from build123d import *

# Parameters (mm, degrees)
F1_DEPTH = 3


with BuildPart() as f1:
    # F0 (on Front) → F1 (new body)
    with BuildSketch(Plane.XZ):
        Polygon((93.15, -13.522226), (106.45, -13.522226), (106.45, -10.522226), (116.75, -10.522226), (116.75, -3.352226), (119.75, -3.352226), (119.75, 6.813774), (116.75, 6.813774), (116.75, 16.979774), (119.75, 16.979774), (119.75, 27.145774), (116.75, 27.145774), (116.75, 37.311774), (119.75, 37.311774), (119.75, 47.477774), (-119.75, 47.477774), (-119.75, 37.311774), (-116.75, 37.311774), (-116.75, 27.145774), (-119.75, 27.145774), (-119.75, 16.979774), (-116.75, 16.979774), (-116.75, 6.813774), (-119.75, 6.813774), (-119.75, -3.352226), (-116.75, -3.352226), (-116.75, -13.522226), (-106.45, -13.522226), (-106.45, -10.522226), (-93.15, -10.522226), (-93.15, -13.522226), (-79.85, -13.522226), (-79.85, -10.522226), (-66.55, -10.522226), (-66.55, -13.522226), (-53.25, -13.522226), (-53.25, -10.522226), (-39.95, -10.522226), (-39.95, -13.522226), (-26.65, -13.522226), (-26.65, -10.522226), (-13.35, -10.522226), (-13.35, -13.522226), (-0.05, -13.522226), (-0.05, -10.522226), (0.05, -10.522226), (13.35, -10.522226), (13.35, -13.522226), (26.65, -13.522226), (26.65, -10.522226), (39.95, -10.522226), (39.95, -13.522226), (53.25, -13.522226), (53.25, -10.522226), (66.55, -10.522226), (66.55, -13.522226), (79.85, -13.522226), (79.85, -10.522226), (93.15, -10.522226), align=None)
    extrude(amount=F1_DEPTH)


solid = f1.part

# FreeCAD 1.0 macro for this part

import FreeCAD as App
import Part
import Sketcher
from FreeCAD import Vector
Q = App.Units.Quantity

doc = App.newDocument("Part")
body = doc.addObject("PartDesign::Body", "Body")

# Sketch on XZ plane
sketch1 = doc.addObject("Sketcher::SketchObject", "Sketch")
body.addObject(sketch1)
sketch1.AttachmentSupport = (doc.XZ_Plane, [""])
sketch1.MapMode = "FlatFace"
sketch1.addGeometry(Part.LineSegment(Vector(93.2, -13.5, 0), Vector(106.5, -13.5, 0)), False)
sketch1.addGeometry(Part.LineSegment(Vector(106.5, -13.5, 0), Vector(106.5, -10.5, 0)), False)
sketch1.addGeometry(Part.LineSegment(Vector(106.5, -10.5, 0), Vector(116.8, -10.5, 0)), False)
sketch1.addGeometry(Part.LineSegment(Vector(116.8, -10.5, 0), Vector(116.8, -3.4, 0)), False)
sketch1.addGeometry(Part.LineSegment(Vector(116.8, -3.4, 0), Vector(119.8, -3.4, 0)), False)
sketch1.addGeometry(Part.LineSegment(Vector(119.8, -3.4, 0), Vector(119.8, 6.8, 0)), False)
sketch1.addGeometry(Part.LineSegment(Vector(119.8, 6.8, 0), Vector(116.8, 6.8, 0)), False)
sketch1.addGeometry(Part.LineSegment(Vector(116.8, 6.8, 0), Vector(116.8, 17, 0)), False)
sketch1.addGeometry(Part.LineSegment(Vector(116.8, 17, 0), Vector(119.8, 17, 0)), False)
sketch1.addGeometry(Part.LineSegment(Vector(119.8, 17, 0), Vector(119.8, 27.1, 0)), False)
sketch1.addGeometry(Part.LineSegment(Vector(119.8, 27.1, 0), Vector(116.8, 27.1, 0)), False)
sketch1.addGeometry(Part.LineSegment(Vector(116.8, 27.1, 0), Vector(116.8, 37.3, 0)), False)
sketch1.addGeometry(Part.LineSegment(Vector(116.8, 37.3, 0), Vector(119.8, 37.3, 0)), False)
sketch1.addGeometry(Part.LineSegment(Vector(119.8, 37.3, 0), Vector(119.8, 47.5, 0)), False)
sketch1.addGeometry(Part.LineSegment(Vector(119.8, 47.5, 0), Vector(-119.8, 47.5, 0)), False)
sketch1.addGeometry(Part.LineSegment(Vector(-119.8, 47.5, 0), Vector(-119.8, 37.3, 0)), False)
sketch1.addGeometry(Part.LineSegment(Vector(-119.8, 37.3, 0), Vector(-116.8, 37.3, 0)), False)
sketch1.addGeometry(Part.LineSegment(Vector(-116.8, 37.3, 0), Vector(-116.8, 27.1, 0)), False)
sketch1.addGeometry(Part.LineSegment(Vector(-116.8, 27.1, 0), Vector(-119.8, 27.1, 0)), False)
sketch1.addGeometry(Part.LineSegment(Vector(-119.8, 27.1, 0), Vector(-119.8, 17, 0)), False)
sketch1.addGeometry(Part.LineSegment(Vector(-119.8, 17, 0), Vector(-116.8, 17, 0)), False)
sketch1.addGeometry(Part.LineSegment(Vector(-116.8, 17, 0), Vector(-116.8, 6.8, 0)), False)
sketch1.addGeometry(Part.LineSegment(Vector(-116.8, 6.8, 0), Vector(-119.8, 6.8, 0)), False)
sketch1.addGeometry(Part.LineSegment(Vector(-119.8, 6.8, 0), Vector(-119.8, -3.4, 0)), False)
sketch1.addGeometry(Part.LineSegment(Vector(-119.8, -3.4, 0), Vector(-116.8, -3.4, 0)), False)
sketch1.addGeometry(Part.LineSegment(Vector(-116.8, -3.4, 0), Vector(-116.8, -13.5, 0)), False)
sketch1.addGeometry(Part.LineSegment(Vector(-116.8, -13.5, 0), Vector(-106.5, -13.5, 0)), False)
sketch1.addGeometry(Part.LineSegment(Vector(-106.5, -13.5, 0), Vector(-106.5, -10.5, 0)), False)
sketch1.addGeometry(Part.LineSegment(Vector(-106.5, -10.5, 0), Vector(-93.2, -10.5, 0)), False)
sketch1.addGeometry(Part.LineSegment(Vector(-93.2, -10.5, 0), Vector(-93.2, -13.5, 0)), False)
sketch1.addGeometry(Part.LineSegment(Vector(-93.2, -13.5, 0), Vector(-79.8, -13.5, 0)), False)
sketch1.addGeometry(Part.LineSegment(Vector(-79.8, -13.5, 0), Vector(-79.8, -10.5, 0)), False)
sketch1.addGeometry(Part.LineSegment(Vector(-79.8, -10.5, 0), Vector(-66.5, -10.5, 0)), False)
sketch1.addGeometry(Part.LineSegment(Vector(-66.5, -10.5, 0), Vector(-66.5, -13.5, 0)), False)
sketch1.addGeometry(Part.LineSegment(Vector(-66.5, -13.5, 0), Vector(-53.2, -13.5, 0)), False)
sketch1.addGeometry(Part.LineSegment(Vector(-53.2, -13.5, 0), Vector(-53.2, -10.5, 0)), False)
sketch1.addGeometry(Part.LineSegment(Vector(-53.2, -10.5, 0), Vector(-40, -10.5, 0)), False)
sketch1.addGeometry(Part.LineSegment(Vector(-40, -10.5, 0), Vector(-40, -13.5, 0)), False)
sketch1.addGeometry(Part.LineSegment(Vector(-40, -13.5, 0), Vector(-26.6, -13.5, 0)), False)
sketch1.addGeometry(Part.LineSegment(Vector(-26.6, -13.5, 0), Vector(-26.6, -10.5, 0)), False)
sketch1.addGeometry(Part.LineSegment(Vector(-26.6, -10.5, 0), Vector(-13.3, -10.5, 0)), False)
sketch1.addGeometry(Part.LineSegment(Vector(-13.3, -10.5, 0), Vector(-13.3, -13.5, 0)), False)
sketch1.addGeometry(Part.LineSegment(Vector(-13.3, -13.5, 0), Vector(-0.1, -13.5, 0)), False)
sketch1.addGeometry(Part.LineSegment(Vector(-0.1, -13.5, 0), Vector(-0.1, -10.5, 0)), False)
sketch1.addGeometry(Part.LineSegment(Vector(-0.1, -10.5, 0), Vector(13.3, -10.5, 0)), False)
sketch1.addGeometry(Part.LineSegment(Vector(13.3, -10.5, 0), Vector(13.3, -13.5, 0)), False)
sketch1.addGeometry(Part.LineSegment(Vector(13.3, -13.5, 0), Vector(26.6, -13.5, 0)), False)
sketch1.addGeometry(Part.LineSegment(Vector(26.6, -13.5, 0), Vector(26.6, -10.5, 0)), False)
sketch1.addGeometry(Part.LineSegment(Vector(26.6, -10.5, 0), Vector(40, -10.5, 0)), False)
sketch1.addGeometry(Part.LineSegment(Vector(40, -10.5, 0), Vector(40, -13.5, 0)), False)
sketch1.addGeometry(Part.LineSegment(Vector(40, -13.5, 0), Vector(53.2, -13.5, 0)), False)
sketch1.addGeometry(Part.LineSegment(Vector(53.2, -13.5, 0), Vector(53.2, -10.5, 0)), False)
sketch1.addGeometry(Part.LineSegment(Vector(53.2, -10.5, 0), Vector(66.5, -10.5, 0)), False)
sketch1.addGeometry(Part.LineSegment(Vector(66.5, -10.5, 0), Vector(66.5, -13.5, 0)), False)
sketch1.addGeometry(Part.LineSegment(Vector(66.5, -13.5, 0), Vector(79.8, -13.5, 0)), False)
sketch1.addGeometry(Part.LineSegment(Vector(79.8, -13.5, 0), Vector(79.8, -10.5, 0)), False)
sketch1.addGeometry(Part.LineSegment(Vector(79.8, -10.5, 0), Vector(93.2, -10.5, 0)), False)
sketch1.addGeometry(Part.LineSegment(Vector(93.2, -10.5, 0), Vector(93.2, -13.5, 0)), False)
sketch1.addConstraint(Sketcher.Constraint("Coincident", 0, 2, 1, 1))
sketch1.addConstraint(Sketcher.Constraint("Coincident", 1, 2, 2, 1))
sketch1.addConstraint(Sketcher.Constraint("Coincident", 2, 2, 3, 1))
sketch1.addConstraint(Sketcher.Constraint("Coincident", 3, 2, 4, 1))
sketch1.addConstraint(Sketcher.Constraint("Coincident", 4, 2, 5, 1))
sketch1.addConstraint(Sketcher.Constraint("Coincident", 5, 2, 6, 1))
sketch1.addConstraint(Sketcher.Constraint("Coincident", 6, 2, 7, 1))
sketch1.addConstraint(Sketcher.Constraint("Coincident", 7, 2, 8, 1))
sketch1.addConstraint(Sketcher.Constraint("Coincident", 8, 2, 9, 1))
sketch1.addConstraint(Sketcher.Constraint("Coincident", 9, 2, 10, 1))
sketch1.addConstraint(Sketcher.Constraint("Coincident", 10, 2, 11, 1))
sketch1.addConstraint(Sketcher.Constraint("Coincident", 11, 2, 12, 1))
sketch1.addConstraint(Sketcher.Constraint("Coincident", 12, 2, 13, 1))
sketch1.addConstraint(Sketcher.Constraint("Coincident", 13, 2, 14, 1))
sketch1.addConstraint(Sketcher.Constraint("Coincident", 14, 2, 15, 1))
sketch1.addConstraint(Sketcher.Constraint("Coincident", 15, 2, 16, 1))
sketch1.addConstraint(Sketcher.Constraint("Coincident", 16, 2, 17, 1))
sketch1.addConstraint(Sketcher.Constraint("Coincident", 17, 2, 18, 1))
sketch1.addConstraint(Sketcher.Constraint("Coincident", 18, 2, 19, 1))
sketch1.addConstraint(Sketcher.Constraint("Coincident", 19, 2, 20, 1))
sketch1.addConstraint(Sketcher.Constraint("Coincident", 20, 2, 21, 1))
sketch1.addConstraint(Sketcher.Constraint("Coincident", 21, 2, 22, 1))
sketch1.addConstraint(Sketcher.Constraint("Coincident", 22, 2, 23, 1))
sketch1.addConstraint(Sketcher.Constraint("Coincident", 23, 2, 24, 1))
sketch1.addConstraint(Sketcher.Constraint("Coincident", 24, 2, 25, 1))
sketch1.addConstraint(Sketcher.Constraint("Coincident", 25, 2, 26, 1))
sketch1.addConstraint(Sketcher.Constraint("Coincident", 26, 2, 27, 1))
sketch1.addConstraint(Sketcher.Constraint("Coincident", 27, 2, 28, 1))
sketch1.addConstraint(Sketcher.Constraint("Coincident", 28, 2, 29, 1))
sketch1.addConstraint(Sketcher.Constraint("Coincident", 29, 2, 30, 1))
sketch1.addConstraint(Sketcher.Constraint("Coincident", 30, 2, 31, 1))
sketch1.addConstraint(Sketcher.Constraint("Coincident", 31, 2, 32, 1))
sketch1.addConstraint(Sketcher.Constraint("Coincident", 32, 2, 33, 1))
sketch1.addConstraint(Sketcher.Constraint("Coincident", 33, 2, 34, 1))
sketch1.addConstraint(Sketcher.Constraint("Coincident", 34, 2, 35, 1))
sketch1.addConstraint(Sketcher.Constraint("Coincident", 35, 2, 36, 1))
sketch1.addConstraint(Sketcher.Constraint("Coincident", 36, 2, 37, 1))
sketch1.addConstraint(Sketcher.Constraint("Coincident", 37, 2, 38, 1))
sketch1.addConstraint(Sketcher.Constraint("Coincident", 38, 2, 39, 1))
sketch1.addConstraint(Sketcher.Constraint("Coincident", 39, 2, 40, 1))
sketch1.addConstraint(Sketcher.Constraint("Coincident", 40, 2, 41, 1))
sketch1.addConstraint(Sketcher.Constraint("Coincident", 41, 2, 42, 1))
sketch1.addConstraint(Sketcher.Constraint("Coincident", 42, 2, 43, 1))
sketch1.addConstraint(Sketcher.Constraint("Coincident", 43, 2, 44, 1))
sketch1.addConstraint(Sketcher.Constraint("Coincident", 44, 2, 45, 1))
sketch1.addConstraint(Sketcher.Constraint("Coincident", 45, 2, 46, 1))
sketch1.addConstraint(Sketcher.Constraint("Coincident", 46, 2, 47, 1))
sketch1.addConstraint(Sketcher.Constraint("Coincident", 47, 2, 48, 1))
sketch1.addConstraint(Sketcher.Constraint("Coincident", 48, 2, 49, 1))
sketch1.addConstraint(Sketcher.Constraint("Coincident", 49, 2, 50, 1))
sketch1.addConstraint(Sketcher.Constraint("Coincident", 50, 2, 51, 1))
sketch1.addConstraint(Sketcher.Constraint("Coincident", 51, 2, 52, 1))
sketch1.addConstraint(Sketcher.Constraint("Coincident", 52, 2, 53, 1))
sketch1.addConstraint(Sketcher.Constraint("Coincident", 53, 2, 54, 1))
sketch1.addConstraint(Sketcher.Constraint("Coincident", 54, 2, 55, 1))
sketch1.addConstraint(Sketcher.Constraint("Coincident", 55, 2, 56, 1))
sketch1.addConstraint(Sketcher.Constraint("Coincident", 56, 2, 57, 1))
sketch1.addConstraint(Sketcher.Constraint("Coincident", 57, 2, 0, 1))
sketch1.addConstraint(Sketcher.Constraint("Horizontal", 0))
sketch1.addConstraint(Sketcher.Constraint("Vertical", 1))
sketch1.addConstraint(Sketcher.Constraint("Horizontal", 2))
sketch1.addConstraint(Sketcher.Constraint("Vertical", 3))
sketch1.addConstraint(Sketcher.Constraint("Horizontal", 4))
sketch1.addConstraint(Sketcher.Constraint("Vertical", 5))
sketch1.addConstraint(Sketcher.Constraint("Horizontal", 6))
sketch1.addConstraint(Sketcher.Constraint("Vertical", 7))
sketch1.addConstraint(Sketcher.Constraint("Horizontal", 8))
sketch1.addConstraint(Sketcher.Constraint("Vertical", 9))
sketch1.addConstraint(Sketcher.Constraint("Horizontal", 10))
sketch1.addConstraint(Sketcher.Constraint("Vertical", 11))
sketch1.addConstraint(Sketcher.Constraint("Horizontal", 12))
sketch1.addConstraint(Sketcher.Constraint("Vertical", 13))
sketch1.addConstraint(Sketcher.Constraint("Horizontal", 14))
sketch1.addConstraint(Sketcher.Constraint("Vertical", 15))
sketch1.addConstraint(Sketcher.Constraint("Horizontal", 16))
sketch1.addConstraint(Sketcher.Constraint("Vertical", 17))
sketch1.addConstraint(Sketcher.Constraint("Horizontal", 18))
sketch1.addConstraint(Sketcher.Constraint("Vertical", 19))
sketch1.addConstraint(Sketcher.Constraint("Horizontal", 20))
sketch1.addConstraint(Sketcher.Constraint("Vertical", 21))
sketch1.addConstraint(Sketcher.Constraint("Horizontal", 22))
sketch1.addConstraint(Sketcher.Constraint("Vertical", 23))
sketch1.addConstraint(Sketcher.Constraint("Horizontal", 24))
sketch1.addConstraint(Sketcher.Constraint("Vertical", 25))
sketch1.addConstraint(Sketcher.Constraint("Horizontal", 26))
sketch1.addConstraint(Sketcher.Constraint("Vertical", 27))
sketch1.addConstraint(Sketcher.Constraint("Horizontal", 28))
sketch1.addConstraint(Sketcher.Constraint("Vertical", 29))
sketch1.addConstraint(Sketcher.Constraint("Horizontal", 30))
sketch1.addConstraint(Sketcher.Constraint("Vertical", 31))
sketch1.addConstraint(Sketcher.Constraint("Horizontal", 32))
sketch1.addConstraint(Sketcher.Constraint("Vertical", 33))
sketch1.addConstraint(Sketcher.Constraint("Horizontal", 34))
sketch1.addConstraint(Sketcher.Constraint("Vertical", 35))
sketch1.addConstraint(Sketcher.Constraint("Horizontal", 36))
sketch1.addConstraint(Sketcher.Constraint("Vertical", 37))
sketch1.addConstraint(Sketcher.Constraint("Horizontal", 38))
sketch1.addConstraint(Sketcher.Constraint("Vertical", 39))
sketch1.addConstraint(Sketcher.Constraint("Horizontal", 40))
sketch1.addConstraint(Sketcher.Constraint("Vertical", 41))
sketch1.addConstraint(Sketcher.Constraint("Horizontal", 42))
sketch1.addConstraint(Sketcher.Constraint("Vertical", 43))
sketch1.addConstraint(Sketcher.Constraint("Horizontal", 44))
sketch1.addConstraint(Sketcher.Constraint("Vertical", 45))
sketch1.addConstraint(Sketcher.Constraint("Horizontal", 46))
sketch1.addConstraint(Sketcher.Constraint("Vertical", 47))
sketch1.addConstraint(Sketcher.Constraint("Horizontal", 48))
sketch1.addConstraint(Sketcher.Constraint("Vertical", 49))
sketch1.addConstraint(Sketcher.Constraint("Horizontal", 50))
sketch1.addConstraint(Sketcher.Constraint("Vertical", 51))
sketch1.addConstraint(Sketcher.Constraint("Horizontal", 52))
sketch1.addConstraint(Sketcher.Constraint("Vertical", 53))
sketch1.addConstraint(Sketcher.Constraint("Horizontal", 54))
sketch1.addConstraint(Sketcher.Constraint("Vertical", 55))
sketch1.addConstraint(Sketcher.Constraint("Horizontal", 56))
sketch1.addConstraint(Sketcher.Constraint("Vertical", 57))
sketch1.addConstraint(Sketcher.Constraint("Symmetric", 12, 2, 15, 2, -2))
sketch1.addConstraint(Sketcher.Constraint("Symmetric", 10, 2, 17, 2, -2))
sketch1.addConstraint(Sketcher.Constraint("Symmetric", 8, 2, 19, 2, -2))
sketch1.addConstraint(Sketcher.Constraint("Symmetric", 6, 2, 21, 2, -2))
sketch1.addConstraint(Sketcher.Constraint("Symmetric", 4, 2, 23, 2, -2))
sketch1.addConstraint(Sketcher.Constraint("Symmetric", 0, 2, 26, 2, -2))
sketch1.addConstraint(Sketcher.Constraint("Symmetric", 40, 2, 44, 2, -2))
sketch1.addConstraint(Sketcher.Constraint("Symmetric", 38, 2, 46, 2, -2))
sketch1.addConstraint(Sketcher.Constraint("Symmetric", 36, 2, 48, 2, -2))
sketch1.addConstraint(Sketcher.Constraint("Symmetric", 34, 2, 50, 2, -2))
sketch1.addConstraint(Sketcher.Constraint("Symmetric", 32, 2, 52, 2, -2))
sketch1.addConstraint(Sketcher.Constraint("Symmetric", 30, 2, 54, 2, -2))
sketch1.addConstraint(Sketcher.Constraint("Symmetric", 28, 2, 56, 2, -2))
sketch1.addConstraint(Sketcher.Constraint("Horizontal", 2, 2, 27, 2))
sketch1.addConstraint(Sketcher.Constraint("Horizontal", 26, 2, 29, 2))
sketch1.addConstraint(Sketcher.Constraint("Horizontal", 28, 2, 31, 2))
sketch1.addConstraint(Sketcher.Constraint("Horizontal", 30, 2, 33, 2))
sketch1.addConstraint(Sketcher.Constraint("Horizontal", 32, 2, 35, 2))
sketch1.addConstraint(Sketcher.Constraint("Horizontal", 34, 2, 37, 2))
sketch1.addConstraint(Sketcher.Constraint("Horizontal", 36, 2, 39, 2))
sketch1.addConstraint(Sketcher.Constraint("Horizontal", 38, 2, 41, 2))
sketch1.addConstraint(Sketcher.Constraint("Vertical", 3, 2, 6, 2))
sketch1.addConstraint(Sketcher.Constraint("Vertical", 5, 2, 8, 2))
sketch1.addConstraint(Sketcher.Constraint("Vertical", 7, 2, 10, 2))
sketch1.addConstraint(Sketcher.Constraint("Vertical", 9, 2, 12, 2))
sketch1.addConstraint(Sketcher.Constraint("Vertical", 21, 2, 24, 2))
sketch1.addConstraint(Sketcher.Constraint("Equal", 28, 30))
sketch1.addConstraint(Sketcher.Constraint("Equal", 30, 32))
sketch1.addConstraint(Sketcher.Constraint("Equal", 32, 34))
sketch1.addConstraint(Sketcher.Constraint("Equal", 34, 36))
sketch1.addConstraint(Sketcher.Constraint("Equal", 36, 38))
sketch1.addConstraint(Sketcher.Constraint("Equal", 38, 40))
sketch1.addConstraint(Sketcher.Constraint("Equal", 40, 42))
sketch1.addConstraint(Sketcher.Constraint("Equal", 24, 1))
sketch1.addConstraint(Sketcher.Constraint("Equal", 5, 7))
sketch1.addConstraint(Sketcher.Constraint("Equal", 7, 9))
sketch1.addConstraint(Sketcher.Constraint("Equal", 9, 11))
sketch1.addConstraint(Sketcher.Constraint("Equal", 11, 13))
sketch1.addConstraint(Sketcher.Constraint("DistanceX", 4, 1, 4, 2, Q("3 mm")))
sketch1.addConstraint(Sketcher.Constraint("DistanceX", 0, 1, 0, 2, Q("13.3 mm")))
sketch1.addConstraint(Sketcher.Constraint("DistanceX", 2, 1, 2, 2, Q("10.3 mm")))
sketch1.addConstraint(Sketcher.Constraint("DistanceX", 14, 2, 14, 1, Q("239.5 mm")))
sketch1.addConstraint(Sketcher.Constraint("DistanceY", 1, 2, 14, 2, Q("58 mm")))
sketch1.addConstraint(Sketcher.Constraint("DistanceY", 3, 1, 3, 2, Q("7.17 mm")))
sketch1.addConstraint(Sketcher.Constraint("DistanceY", 0, 2, -1, 1, Q("13.522226 mm")))
pad1 = doc.addObject("PartDesign::Pad", "Pad")
body.addObject(pad1)
pad1.Profile = sketch1
pad1.Length = 3

doc.recompute()
